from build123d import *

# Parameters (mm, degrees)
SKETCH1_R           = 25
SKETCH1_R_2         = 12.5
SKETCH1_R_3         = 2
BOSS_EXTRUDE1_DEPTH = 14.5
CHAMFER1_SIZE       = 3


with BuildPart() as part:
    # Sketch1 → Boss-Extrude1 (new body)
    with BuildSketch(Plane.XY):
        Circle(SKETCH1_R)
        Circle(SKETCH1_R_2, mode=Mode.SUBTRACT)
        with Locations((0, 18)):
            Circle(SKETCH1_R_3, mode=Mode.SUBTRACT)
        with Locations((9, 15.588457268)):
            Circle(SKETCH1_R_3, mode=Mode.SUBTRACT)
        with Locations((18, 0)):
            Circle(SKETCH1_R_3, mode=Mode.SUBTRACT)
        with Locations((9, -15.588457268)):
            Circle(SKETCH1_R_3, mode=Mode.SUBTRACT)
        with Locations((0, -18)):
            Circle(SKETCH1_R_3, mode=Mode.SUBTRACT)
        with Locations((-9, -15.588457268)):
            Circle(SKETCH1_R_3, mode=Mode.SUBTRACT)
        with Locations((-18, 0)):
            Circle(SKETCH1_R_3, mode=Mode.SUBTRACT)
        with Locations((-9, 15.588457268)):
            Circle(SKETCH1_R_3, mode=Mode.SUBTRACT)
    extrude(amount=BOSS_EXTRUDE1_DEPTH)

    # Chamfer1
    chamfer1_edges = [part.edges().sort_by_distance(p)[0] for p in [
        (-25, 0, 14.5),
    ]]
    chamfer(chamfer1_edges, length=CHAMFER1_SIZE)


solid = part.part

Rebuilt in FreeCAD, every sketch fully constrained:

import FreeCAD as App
import Part
import Sketcher
from FreeCAD import Vector


def edges_at(feature, points):
    """Names of the edges that pass closest to the given points."""
    edges = feature.Shape.Edges
    near = lambda p: min(range(len(edges)), key=lambda i: edges[i].distToShape(Part.Vertex(*p))[0])
    return sorted({f"Edge{near(p) + 1}" for p in points})

doc = App.newDocument("Part")
params = doc.addObject("Spreadsheet::Sheet", "Params")
for row, (alias, value) in enumerate([
    ("sketch1_diameter", "50 mm"),
    ("sketch1_diameter2", "4 mm"),
    ("sketch1_diameter3", "25 mm"),
    ("pad1_length", "14.5 mm"),
    ("chamfer_size", "3 mm"),
], start=1):
    params.set(f"A{row}", alias)
    params.set(f"B{row}", "=" + value)
    params.setAlias(f"B{row}", alias)

body = doc.addObject("PartDesign::Body", "Body")

sketch1 = doc.addObject("Sketcher::SketchObject", "Sketch")
body.addObject(sketch1)
sketch1.AttachmentSupport = (doc.XY_Plane, [""])
sketch1.MapMode = "FlatFace"
sketch1.addGeometry(Part.Circle(Vector(0, 0, 0), Vector(0, 0, 1), 25), False)
sketch1.addGeometry(Part.Circle(Vector(-9, -15.6, 0), Vector(0, 0, 1), 2), False)
sketch1.addGeometry(Part.Circle(Vector(0, -18, 0), Vector(0, 0, 1), 2), False)
sketch1.addGeometry(Part.Circle(Vector(9, -15.6, 0), Vector(0, 0, 1), 2), False)
sketch1.addGeometry(Part.Circle(Vector(-18, 0, 0), Vector(0, 0, 1), 2), False)
sketch1.addGeometry(Part.Circle(Vector(-9, 15.6, 0), Vector(0, 0, 1), 2), False)
sketch1.addGeometry(Part.Circle(Vector(0, 0, 0), Vector(0, 0, 1), 12.5), False)
sketch1.addGeometry(Part.Circle(Vector(18, 0, 0), Vector(0, 0, 1), 2), False)
sketch1.addGeometry(Part.Circle(Vector(0, 18, 0), Vector(0, 0, 1), 2), False)
sketch1.addGeometry(Part.Circle(Vector(9, 15.6, 0), Vector(0, 0, 1), 2), False)
sketch1.addConstraint(Sketcher.Constraint("Coincident", 0, 3, -1, 1))
sketch1.addConstraint(Sketcher.Constraint("Coincident", 6, 3, -1, 1))
sketch1.addConstraint(Sketcher.Constraint("Equal", 1, 2))
sketch1.addConstraint(Sketcher.Constraint("Equal", 2, 3))
sketch1.addConstraint(Sketcher.Constraint("Equal", 3, 4))
sketch1.addConstraint(Sketcher.Constraint("Equal", 4, 5))
sketch1.addConstraint(Sketcher.Constraint("Equal", 5, 7))
sketch1.addConstraint(Sketcher.Constraint("Equal", 7, 8))
sketch1.addConstraint(Sketcher.Constraint("Equal", 8, 9))
sketch1.addConstraint(Sketcher.Constraint("Symmetric", 3, 3, 5, 3, -1, 1))
sketch1.addConstraint(Sketcher.Constraint("Symmetric", 4, 3, 7, 3, -1, 1))
sketch1.addConstraint(Sketcher.Constraint("Symmetric", 2, 3, 8, 3, -1, 1))
sketch1.addConstraint(Sketcher.Constraint("Symmetric", 1, 3, 9, 3, -1, 1))
sketch1.addConstraint(Sketcher.Constraint("Symmetric", 1, 3, 3, 3, -2))
sketch1.addConstraint(Sketcher.Constraint("PointOnObject", 2, 3, -2))
sketch1.addConstraint(Sketcher.Constraint("PointOnObject", 4, 3, -1))
sketch1.addConstraint(Sketcher.Constraint("Diameter", 0, 50.0))
sketch1.addConstraint(Sketcher.Constraint("Diameter", 1, 4.0))
sketch1.addConstraint(Sketcher.Constraint("Diameter", 6, 25.0))
sketch1.addConstraint(Sketcher.Constraint("DistanceX", 1, 3, -1, 1, 9.0))
sketch1.addConstraint(Sketcher.Constraint("DistanceY", 2, 3, -1, 1, 18.0))
sketch1.addConstraint(Sketcher.Constraint("DistanceX", 4, 3, -1, 1, 18.0))
sketch1.addConstraint(Sketcher.Constraint("DistanceY", 1, 3, -1, 1, 15.588457))
sketch1.setExpression("Constraints[16]", "Params.sketch1_diameter")
sketch1.setExpression("Constraints[17]", "Params.sketch1_diameter2")
sketch1.setExpression("Constraints[18]", "Params.sketch1_diameter3")
pad1 = doc.addObject("PartDesign::Pad", "Pad")
body.addObject(pad1)
pad1.Profile = sketch1
pad1.setExpression("Length", "Params.pad1_length")
doc.recompute()

chamfer = doc.addObject("PartDesign::Chamfer", "Chamfer")
body.addObject(chamfer)
chamfer.Base = (pad1, edges_at(pad1, [(-25, 0, 14.5)]))
chamfer.setExpression("Size", "Params.chamfer_size")

doc.recompute()
